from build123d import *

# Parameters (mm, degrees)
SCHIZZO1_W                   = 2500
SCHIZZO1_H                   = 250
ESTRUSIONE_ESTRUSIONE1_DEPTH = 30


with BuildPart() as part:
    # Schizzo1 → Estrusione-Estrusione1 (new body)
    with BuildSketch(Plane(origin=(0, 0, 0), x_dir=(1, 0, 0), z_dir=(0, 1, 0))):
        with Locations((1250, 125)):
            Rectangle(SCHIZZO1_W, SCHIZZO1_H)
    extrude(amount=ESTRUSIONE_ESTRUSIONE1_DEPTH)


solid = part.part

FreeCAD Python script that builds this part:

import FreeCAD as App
import Part
import Sketcher

V = App.Vector


def add_polygon(sketch, points):
    """Adds a closed chain of lines whose ends are joined by coincident constraints."""
    first, n = sketch.GeometryCount, len(points)
    for a, b in zip(points, points[1:] + points[:1]):
        sketch.addGeometry(Part.LineSegment(App.Vector(*a, 0), App.Vector(*b, 0)), False)
    for i in range(n):
        sketch.addConstraint(Sketcher.Constraint("Coincident", first + i, 2, first + (i + 1) % n, 1))

doc = App.newDocument("Part")
params = doc.addObject("Spreadsheet::Sheet", "Params")
for row, (alias, value) in enumerate([
    ("sketch1_width", "2500 mm"),
    ("sketch1_height", "250 mm"),
    ("pad1_length", "30 mm"),
], start=1):
    params.set(f"A{row}", alias)
    params.set(f"B{row}", "=" + value)
    params.setAlias(f"B{row}", alias)

body = doc.addObject("PartDesign::Body", "Body")

# Sketch on XZ plane
sketch1 = doc.addObject("Sketcher::SketchObject", "Sketch")
body.addObject(sketch1)
sketch1.AttachmentSupport = (doc.XZ_Plane, [""])
sketch1.MapMode = "FlatFace"
add_polygon(sketch1, [(0, -250), (0, 0), (2500, 0), (2500, -250)])  # lines 0-3
sketch1.addConstraint([
    Sketcher.Constraint("Vertical", 0),
    Sketcher.Constraint("Horizontal", 1),
    Sketcher.Constraint("Vertical", 2),
    Sketcher.Constraint("Horizontal", 3),
    Sketcher.Constraint("Coincident", 0, 2, -1, 1),
    Sketcher.Constraint("DistanceX", 1, 1, 1, 2, 2500.0),
    Sketcher.Constraint("DistanceY", 0, 1, 0, 2, 250.0),
])
sketch1.setExpression("Constraints[9]", "Params.sketch1_width")
sketch1.setExpression("Constraints[10]", "Params.sketch1_height")
pad1 = doc.addObject("PartDesign::Pad", "Pad")
body.addObject(pad1)
pad1.Profile = sketch1
pad1.setExpression("Length", "Params.pad1_length")
pad1.Reversed = True

doc.recompute()
